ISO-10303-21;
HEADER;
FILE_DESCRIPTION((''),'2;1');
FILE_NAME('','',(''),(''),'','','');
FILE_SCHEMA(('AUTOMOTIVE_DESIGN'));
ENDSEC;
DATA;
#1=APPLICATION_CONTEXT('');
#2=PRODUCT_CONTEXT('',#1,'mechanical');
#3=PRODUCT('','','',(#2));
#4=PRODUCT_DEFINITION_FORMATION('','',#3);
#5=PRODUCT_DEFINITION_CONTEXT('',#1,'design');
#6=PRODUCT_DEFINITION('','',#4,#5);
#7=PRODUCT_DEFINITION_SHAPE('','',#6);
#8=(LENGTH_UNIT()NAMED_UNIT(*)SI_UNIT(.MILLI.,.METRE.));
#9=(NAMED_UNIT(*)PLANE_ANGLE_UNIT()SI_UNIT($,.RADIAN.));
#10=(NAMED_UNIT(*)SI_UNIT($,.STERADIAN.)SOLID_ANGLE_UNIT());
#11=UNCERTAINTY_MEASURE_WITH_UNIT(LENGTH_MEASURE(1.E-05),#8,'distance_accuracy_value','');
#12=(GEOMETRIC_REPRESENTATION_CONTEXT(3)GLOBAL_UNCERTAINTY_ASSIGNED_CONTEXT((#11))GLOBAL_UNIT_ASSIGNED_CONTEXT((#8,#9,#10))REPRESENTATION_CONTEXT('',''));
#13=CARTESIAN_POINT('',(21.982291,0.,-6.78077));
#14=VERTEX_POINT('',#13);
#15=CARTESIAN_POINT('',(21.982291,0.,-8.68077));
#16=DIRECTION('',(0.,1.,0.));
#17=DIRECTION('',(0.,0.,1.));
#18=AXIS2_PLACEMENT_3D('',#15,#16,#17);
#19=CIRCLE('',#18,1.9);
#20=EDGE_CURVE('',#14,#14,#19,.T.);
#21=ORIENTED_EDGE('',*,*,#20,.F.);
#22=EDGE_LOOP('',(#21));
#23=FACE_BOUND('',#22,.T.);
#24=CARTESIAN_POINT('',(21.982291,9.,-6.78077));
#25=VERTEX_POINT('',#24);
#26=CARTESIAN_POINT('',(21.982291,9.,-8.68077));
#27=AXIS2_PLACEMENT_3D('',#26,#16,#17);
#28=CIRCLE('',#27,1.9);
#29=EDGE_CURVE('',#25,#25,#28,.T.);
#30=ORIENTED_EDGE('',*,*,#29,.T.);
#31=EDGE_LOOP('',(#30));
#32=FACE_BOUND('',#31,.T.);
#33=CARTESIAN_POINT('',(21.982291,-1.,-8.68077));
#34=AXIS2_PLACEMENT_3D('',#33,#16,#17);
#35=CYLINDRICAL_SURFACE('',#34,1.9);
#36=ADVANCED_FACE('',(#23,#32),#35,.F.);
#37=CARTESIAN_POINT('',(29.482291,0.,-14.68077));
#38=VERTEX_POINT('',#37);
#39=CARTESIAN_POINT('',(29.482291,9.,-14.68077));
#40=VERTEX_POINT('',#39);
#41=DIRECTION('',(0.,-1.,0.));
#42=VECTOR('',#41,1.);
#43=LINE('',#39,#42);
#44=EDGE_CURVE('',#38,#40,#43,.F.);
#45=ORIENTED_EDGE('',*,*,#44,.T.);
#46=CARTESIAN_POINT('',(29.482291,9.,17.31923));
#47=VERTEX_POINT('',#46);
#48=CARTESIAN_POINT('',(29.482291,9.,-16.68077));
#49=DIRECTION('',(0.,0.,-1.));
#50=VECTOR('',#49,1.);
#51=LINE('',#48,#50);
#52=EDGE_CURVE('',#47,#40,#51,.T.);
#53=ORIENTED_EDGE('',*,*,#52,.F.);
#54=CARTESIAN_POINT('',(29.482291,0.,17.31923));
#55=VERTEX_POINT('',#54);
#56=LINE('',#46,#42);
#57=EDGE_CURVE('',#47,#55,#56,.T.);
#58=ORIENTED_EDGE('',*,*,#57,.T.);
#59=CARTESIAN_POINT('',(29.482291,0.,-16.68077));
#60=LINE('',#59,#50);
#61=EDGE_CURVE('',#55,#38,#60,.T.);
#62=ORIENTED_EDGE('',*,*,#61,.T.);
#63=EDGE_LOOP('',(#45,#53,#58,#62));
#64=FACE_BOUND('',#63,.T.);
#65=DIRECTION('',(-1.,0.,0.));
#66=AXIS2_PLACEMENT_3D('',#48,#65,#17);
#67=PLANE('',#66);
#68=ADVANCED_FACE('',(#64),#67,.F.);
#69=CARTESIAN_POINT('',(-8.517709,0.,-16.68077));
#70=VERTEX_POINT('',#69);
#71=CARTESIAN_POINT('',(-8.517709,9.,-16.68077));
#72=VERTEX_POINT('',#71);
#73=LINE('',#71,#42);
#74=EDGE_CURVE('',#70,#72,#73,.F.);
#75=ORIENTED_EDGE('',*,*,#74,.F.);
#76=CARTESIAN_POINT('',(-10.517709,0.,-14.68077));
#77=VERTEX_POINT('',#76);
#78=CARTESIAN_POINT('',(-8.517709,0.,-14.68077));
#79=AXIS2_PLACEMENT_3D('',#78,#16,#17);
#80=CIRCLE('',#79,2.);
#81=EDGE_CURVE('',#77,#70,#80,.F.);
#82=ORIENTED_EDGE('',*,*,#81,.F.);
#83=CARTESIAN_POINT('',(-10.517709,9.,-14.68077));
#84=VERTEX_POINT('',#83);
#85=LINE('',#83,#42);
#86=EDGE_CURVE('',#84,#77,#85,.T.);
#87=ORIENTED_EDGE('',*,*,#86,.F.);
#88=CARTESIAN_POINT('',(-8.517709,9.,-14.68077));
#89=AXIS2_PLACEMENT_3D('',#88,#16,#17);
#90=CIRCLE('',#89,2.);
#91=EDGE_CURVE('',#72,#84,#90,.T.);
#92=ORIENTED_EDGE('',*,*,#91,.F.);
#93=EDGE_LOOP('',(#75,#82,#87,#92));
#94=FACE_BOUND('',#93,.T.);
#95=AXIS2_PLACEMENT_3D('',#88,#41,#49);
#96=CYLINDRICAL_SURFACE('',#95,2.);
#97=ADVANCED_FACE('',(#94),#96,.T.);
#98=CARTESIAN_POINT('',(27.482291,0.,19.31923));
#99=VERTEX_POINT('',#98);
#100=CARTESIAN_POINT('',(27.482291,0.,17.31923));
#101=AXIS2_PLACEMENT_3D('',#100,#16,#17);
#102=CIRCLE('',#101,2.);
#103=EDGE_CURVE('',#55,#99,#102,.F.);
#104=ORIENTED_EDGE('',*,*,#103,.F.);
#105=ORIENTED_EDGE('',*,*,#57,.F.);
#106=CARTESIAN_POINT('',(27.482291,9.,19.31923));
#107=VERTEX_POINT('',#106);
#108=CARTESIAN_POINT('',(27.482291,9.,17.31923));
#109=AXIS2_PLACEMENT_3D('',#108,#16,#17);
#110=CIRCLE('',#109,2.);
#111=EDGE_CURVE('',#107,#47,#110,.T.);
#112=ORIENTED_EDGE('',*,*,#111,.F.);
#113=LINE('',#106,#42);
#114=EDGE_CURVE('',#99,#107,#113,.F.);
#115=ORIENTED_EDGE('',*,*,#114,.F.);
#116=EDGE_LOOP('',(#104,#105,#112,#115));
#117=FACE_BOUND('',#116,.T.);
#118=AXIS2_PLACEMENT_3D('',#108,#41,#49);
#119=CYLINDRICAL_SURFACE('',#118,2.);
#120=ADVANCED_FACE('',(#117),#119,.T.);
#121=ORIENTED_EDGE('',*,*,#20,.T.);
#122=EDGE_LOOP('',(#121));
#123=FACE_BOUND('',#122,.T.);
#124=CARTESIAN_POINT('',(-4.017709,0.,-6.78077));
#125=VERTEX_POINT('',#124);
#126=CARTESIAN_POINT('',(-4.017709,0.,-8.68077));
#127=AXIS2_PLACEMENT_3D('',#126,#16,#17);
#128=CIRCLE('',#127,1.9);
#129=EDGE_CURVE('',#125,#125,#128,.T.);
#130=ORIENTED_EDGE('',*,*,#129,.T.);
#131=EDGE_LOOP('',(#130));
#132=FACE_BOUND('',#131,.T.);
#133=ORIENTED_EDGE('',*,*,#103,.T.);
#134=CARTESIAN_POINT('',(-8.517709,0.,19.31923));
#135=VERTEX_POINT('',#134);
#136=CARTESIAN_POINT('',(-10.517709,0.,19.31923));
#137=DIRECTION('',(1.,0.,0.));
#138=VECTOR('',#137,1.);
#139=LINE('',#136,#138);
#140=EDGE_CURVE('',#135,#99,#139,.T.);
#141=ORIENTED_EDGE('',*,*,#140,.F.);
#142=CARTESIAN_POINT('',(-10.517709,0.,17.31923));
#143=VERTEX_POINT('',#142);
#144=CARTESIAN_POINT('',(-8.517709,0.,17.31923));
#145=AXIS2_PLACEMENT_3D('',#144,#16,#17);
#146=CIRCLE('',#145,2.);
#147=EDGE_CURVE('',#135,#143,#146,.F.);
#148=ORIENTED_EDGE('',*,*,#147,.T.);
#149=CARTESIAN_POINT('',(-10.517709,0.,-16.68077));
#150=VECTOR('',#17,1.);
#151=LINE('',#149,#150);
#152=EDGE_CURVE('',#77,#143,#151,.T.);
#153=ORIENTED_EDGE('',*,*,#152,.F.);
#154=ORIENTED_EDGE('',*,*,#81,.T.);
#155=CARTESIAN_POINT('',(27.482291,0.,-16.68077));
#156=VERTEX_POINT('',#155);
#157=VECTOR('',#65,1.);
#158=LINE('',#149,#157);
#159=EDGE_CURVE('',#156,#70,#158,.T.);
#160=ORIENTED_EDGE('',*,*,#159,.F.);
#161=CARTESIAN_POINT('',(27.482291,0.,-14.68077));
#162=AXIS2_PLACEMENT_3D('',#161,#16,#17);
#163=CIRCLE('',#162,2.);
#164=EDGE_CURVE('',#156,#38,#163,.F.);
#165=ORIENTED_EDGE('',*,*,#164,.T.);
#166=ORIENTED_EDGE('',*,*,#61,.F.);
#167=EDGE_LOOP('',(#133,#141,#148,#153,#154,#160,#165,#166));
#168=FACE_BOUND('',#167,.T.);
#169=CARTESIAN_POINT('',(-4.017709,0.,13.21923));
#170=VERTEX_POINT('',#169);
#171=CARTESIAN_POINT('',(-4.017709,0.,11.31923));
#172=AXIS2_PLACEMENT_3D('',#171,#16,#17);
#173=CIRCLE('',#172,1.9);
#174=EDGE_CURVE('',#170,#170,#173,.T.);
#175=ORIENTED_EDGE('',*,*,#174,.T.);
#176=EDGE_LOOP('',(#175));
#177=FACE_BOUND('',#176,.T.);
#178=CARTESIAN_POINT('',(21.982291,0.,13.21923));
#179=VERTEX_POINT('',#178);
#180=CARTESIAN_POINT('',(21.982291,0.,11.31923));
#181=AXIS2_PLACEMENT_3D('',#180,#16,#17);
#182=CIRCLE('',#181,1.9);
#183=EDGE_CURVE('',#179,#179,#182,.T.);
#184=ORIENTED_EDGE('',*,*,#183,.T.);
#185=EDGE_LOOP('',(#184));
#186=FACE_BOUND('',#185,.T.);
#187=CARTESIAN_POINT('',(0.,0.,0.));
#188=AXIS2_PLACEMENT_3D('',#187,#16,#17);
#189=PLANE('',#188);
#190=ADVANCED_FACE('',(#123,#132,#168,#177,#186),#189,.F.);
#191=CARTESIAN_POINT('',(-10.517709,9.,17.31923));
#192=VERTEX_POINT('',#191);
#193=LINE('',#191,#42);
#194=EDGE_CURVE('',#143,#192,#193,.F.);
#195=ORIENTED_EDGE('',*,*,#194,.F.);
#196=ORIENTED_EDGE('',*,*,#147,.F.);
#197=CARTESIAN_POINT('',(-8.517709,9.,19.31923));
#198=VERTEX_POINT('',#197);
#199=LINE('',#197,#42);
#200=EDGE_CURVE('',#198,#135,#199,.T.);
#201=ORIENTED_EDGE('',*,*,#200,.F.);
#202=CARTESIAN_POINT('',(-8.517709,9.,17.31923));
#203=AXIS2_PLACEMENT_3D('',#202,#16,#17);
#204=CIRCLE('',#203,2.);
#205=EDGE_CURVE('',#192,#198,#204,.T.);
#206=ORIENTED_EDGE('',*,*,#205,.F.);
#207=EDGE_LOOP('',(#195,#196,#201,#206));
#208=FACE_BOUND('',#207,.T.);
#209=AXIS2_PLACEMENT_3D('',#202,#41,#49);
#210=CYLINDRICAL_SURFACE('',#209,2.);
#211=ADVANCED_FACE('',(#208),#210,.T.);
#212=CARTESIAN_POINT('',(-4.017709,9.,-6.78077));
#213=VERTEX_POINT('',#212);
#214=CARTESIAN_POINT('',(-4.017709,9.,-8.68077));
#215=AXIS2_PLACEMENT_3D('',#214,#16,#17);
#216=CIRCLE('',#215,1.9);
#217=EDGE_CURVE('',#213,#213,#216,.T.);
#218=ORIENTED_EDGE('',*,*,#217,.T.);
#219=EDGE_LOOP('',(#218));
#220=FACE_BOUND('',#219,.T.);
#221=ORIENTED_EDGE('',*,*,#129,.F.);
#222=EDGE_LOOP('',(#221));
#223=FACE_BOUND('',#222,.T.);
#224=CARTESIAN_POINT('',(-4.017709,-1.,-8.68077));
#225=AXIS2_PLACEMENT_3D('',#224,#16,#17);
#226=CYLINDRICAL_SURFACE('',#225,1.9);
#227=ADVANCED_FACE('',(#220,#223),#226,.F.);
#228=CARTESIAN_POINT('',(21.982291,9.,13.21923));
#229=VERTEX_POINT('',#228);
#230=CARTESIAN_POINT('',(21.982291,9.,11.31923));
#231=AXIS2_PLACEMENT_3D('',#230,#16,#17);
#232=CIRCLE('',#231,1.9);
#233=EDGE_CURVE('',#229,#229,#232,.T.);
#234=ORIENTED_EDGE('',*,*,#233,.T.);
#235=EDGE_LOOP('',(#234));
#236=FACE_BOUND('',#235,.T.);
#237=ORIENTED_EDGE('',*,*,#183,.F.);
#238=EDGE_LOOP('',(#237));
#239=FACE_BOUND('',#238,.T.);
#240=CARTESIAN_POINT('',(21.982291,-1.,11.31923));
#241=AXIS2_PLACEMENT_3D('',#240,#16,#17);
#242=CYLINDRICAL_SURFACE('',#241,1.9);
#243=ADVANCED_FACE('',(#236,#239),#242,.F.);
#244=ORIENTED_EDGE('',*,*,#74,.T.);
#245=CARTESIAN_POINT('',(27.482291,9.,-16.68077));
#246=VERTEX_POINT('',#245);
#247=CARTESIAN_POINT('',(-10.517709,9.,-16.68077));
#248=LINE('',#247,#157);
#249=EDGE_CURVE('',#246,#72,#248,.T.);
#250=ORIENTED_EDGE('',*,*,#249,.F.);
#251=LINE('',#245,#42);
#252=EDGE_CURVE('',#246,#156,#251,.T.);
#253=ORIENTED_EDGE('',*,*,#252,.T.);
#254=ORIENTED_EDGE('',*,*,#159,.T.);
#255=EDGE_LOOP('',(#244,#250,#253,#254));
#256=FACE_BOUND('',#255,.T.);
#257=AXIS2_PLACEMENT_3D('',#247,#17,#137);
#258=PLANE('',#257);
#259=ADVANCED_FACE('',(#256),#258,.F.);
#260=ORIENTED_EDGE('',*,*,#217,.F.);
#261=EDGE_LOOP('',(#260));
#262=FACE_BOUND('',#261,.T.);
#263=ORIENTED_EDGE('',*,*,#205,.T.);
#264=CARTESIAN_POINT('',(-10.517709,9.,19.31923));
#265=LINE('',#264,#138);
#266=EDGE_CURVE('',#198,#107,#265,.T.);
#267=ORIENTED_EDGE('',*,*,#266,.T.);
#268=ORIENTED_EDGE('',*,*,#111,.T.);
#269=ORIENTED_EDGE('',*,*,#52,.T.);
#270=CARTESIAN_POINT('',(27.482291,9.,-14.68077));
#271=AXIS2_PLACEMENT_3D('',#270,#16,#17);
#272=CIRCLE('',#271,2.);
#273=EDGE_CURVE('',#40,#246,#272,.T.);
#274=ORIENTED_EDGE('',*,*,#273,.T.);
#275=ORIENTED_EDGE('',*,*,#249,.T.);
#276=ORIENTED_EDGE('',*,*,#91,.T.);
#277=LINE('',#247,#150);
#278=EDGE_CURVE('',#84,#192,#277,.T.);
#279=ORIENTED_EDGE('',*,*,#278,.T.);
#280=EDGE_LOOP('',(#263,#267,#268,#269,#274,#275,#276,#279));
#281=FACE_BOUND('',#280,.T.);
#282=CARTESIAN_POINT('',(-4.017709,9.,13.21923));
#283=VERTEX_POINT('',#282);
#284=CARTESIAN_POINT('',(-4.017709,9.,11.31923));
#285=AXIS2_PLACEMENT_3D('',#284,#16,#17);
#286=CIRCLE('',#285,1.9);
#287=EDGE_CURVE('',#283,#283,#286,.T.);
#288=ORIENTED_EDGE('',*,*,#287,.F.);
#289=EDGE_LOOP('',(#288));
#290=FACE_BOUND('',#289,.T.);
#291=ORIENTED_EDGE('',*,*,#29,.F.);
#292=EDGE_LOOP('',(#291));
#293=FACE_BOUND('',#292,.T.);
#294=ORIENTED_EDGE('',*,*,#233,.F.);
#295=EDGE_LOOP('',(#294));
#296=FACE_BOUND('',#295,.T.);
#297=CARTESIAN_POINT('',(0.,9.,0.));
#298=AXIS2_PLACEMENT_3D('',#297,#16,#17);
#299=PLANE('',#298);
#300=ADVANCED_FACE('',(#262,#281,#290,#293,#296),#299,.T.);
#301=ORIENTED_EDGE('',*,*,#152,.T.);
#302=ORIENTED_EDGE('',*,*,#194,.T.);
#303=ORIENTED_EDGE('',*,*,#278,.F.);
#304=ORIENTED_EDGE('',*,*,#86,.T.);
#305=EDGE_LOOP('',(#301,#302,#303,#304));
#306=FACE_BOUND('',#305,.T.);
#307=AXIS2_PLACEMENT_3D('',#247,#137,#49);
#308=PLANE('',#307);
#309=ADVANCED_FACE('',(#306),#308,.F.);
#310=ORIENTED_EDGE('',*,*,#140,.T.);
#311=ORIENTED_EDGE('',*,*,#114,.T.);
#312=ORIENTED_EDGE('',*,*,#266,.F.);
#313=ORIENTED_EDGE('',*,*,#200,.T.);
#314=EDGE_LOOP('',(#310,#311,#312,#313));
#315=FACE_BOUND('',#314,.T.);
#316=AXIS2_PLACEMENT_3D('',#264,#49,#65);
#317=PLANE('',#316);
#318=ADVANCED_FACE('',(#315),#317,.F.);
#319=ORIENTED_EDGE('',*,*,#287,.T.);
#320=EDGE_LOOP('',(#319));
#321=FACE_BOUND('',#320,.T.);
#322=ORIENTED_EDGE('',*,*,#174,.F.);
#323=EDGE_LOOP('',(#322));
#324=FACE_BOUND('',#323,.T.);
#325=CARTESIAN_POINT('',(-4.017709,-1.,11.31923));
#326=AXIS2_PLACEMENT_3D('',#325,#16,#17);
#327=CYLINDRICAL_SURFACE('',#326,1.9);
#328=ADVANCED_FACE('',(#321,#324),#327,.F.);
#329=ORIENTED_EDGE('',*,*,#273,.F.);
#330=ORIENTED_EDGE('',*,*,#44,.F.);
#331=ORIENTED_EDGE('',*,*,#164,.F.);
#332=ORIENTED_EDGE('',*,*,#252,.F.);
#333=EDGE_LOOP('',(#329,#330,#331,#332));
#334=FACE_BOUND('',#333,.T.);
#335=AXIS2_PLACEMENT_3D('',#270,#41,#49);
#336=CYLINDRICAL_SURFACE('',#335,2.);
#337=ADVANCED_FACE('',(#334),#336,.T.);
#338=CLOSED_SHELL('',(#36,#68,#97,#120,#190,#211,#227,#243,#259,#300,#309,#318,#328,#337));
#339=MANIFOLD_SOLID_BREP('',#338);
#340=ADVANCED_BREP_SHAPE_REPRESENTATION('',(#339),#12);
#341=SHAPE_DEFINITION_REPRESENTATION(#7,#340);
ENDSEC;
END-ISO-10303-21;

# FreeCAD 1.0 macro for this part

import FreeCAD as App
import Part
import Sketcher
from FreeCAD import Vector
Q = App.Units.Quantity


def edges_at(feature, points):
    """Names of the edges that pass closest to the given points."""
    edges = feature.Shape.Edges
    near = lambda p: min(range(len(edges)), key=lambda i: edges[i].distToShape(Part.Vertex(*p))[0])
    return sorted({f"Edge{near(p) + 1}" for p in points})

doc = App.newDocument("Part")
params = doc.addObject("Spreadsheet::Sheet", "Params")
for row, (alias, value) in enumerate([
    ("sketch1_width", "40 mm"),
    ("sketch1_height", "36 mm"),
    ("pad1_length", "9 mm"),
    ("sketch2_diameter", "3.8 mm"),
    ("pocket1_length", "10 mm"),
    ("fillet_radius", "2 mm"),
], start=1):
    params.set(f"A{row}", alias)
    params.set(f"B{row}", "=" + value)
    params.setAlias(f"B{row}", alias)

body = doc.addObject("PartDesign::Body", "Body")

# Sketch on XZ plane
sketch1 = body.newObject("Sketcher::SketchObject", "Sketch")
sketch1.AttachmentSupport = (doc.getObject("XZ_Plane"), [""])
sketch1.MapMode = "FlatFace"
sketch1.addGeometry(Part.LineSegment(Vector(-11, -17, 0), Vector(-11, 19, 0)), False)
sketch1.addGeometry(Part.LineSegment(Vector(-11, 19, 0), Vector(29, 19, 0)), False)
sketch1.addGeometry(Part.LineSegment(Vector(29, 19, 0), Vector(29, -17, 0)), False)
sketch1.addGeometry(Part.LineSegment(Vector(29, -17, 0), Vector(-11, -17, 0)), False)
sketch1.addConstraint(Sketcher.Constraint("Coincident", 0, 2, 1, 1))
sketch1.addConstraint(Sketcher.Constraint("Coincident", 1, 2, 2, 1))
sketch1.addConstraint(Sketcher.Constraint("Coincident", 2, 2, 3, 1))
sketch1.addConstraint(Sketcher.Constraint("Coincident", 3, 2, 0, 1))
sketch1.addConstraint(Sketcher.Constraint("Vertical", 0))
sketch1.addConstraint(Sketcher.Constraint("Horizontal", 1))
sketch1.addConstraint(Sketcher.Constraint("Vertical", 2))
sketch1.addConstraint(Sketcher.Constraint("Horizontal", 3))
sketch1.addConstraint(Sketcher.Constraint("DistanceX", 1, 1, 1, 2, Q("40 mm")))
sketch1.addConstraint(Sketcher.Constraint("DistanceY", 0, 1, 0, 2, Q("36 mm")))
sketch1.addConstraint(Sketcher.Constraint("DistanceX", 0, 2, -1, 1, Q("10.517709 mm")))
sketch1.addConstraint(Sketcher.Constraint("DistanceY", -1, 1, 0, 2, Q("19.31923 mm")))
sketch1.setExpression("Constraints[8]", "Params.sketch1_width")
sketch1.setExpression("Constraints[9]", "Params.sketch1_height")
pad1 = body.newObject("PartDesign::Pad", "Pad")
pad1.Profile = sketch1
pad1.setExpression("Length", "Params.pad1_length")
pad1.Reversed = True

# Sketch on XZ plane
sketch2 = body.newObject("Sketcher::SketchObject", "Sketch001")
sketch2.AttachmentSupport = (doc.getObject("XZ_Plane"), [""])
sketch2.MapMode = "FlatFace"
sketch2.AttachmentOffset = App.Placement(Vector(0, 0, -9), App.Rotation())
sketch2.addGeometry(Part.Circle(Vector(-4, 11.3, 0), Vector(0, 0, 1), 1.9), False)
sketch2.addGeometry(Part.Circle(Vector(22, 11.3, 0), Vector(0, 0, 1), 1.9), False)
sketch2.addGeometry(Part.Circle(Vector(-4, -8.7, 0), Vector(0, 0, 1), 1.9), False)
sketch2.addGeometry(Part.Circle(Vector(22, -8.7, 0), Vector(0, 0, 1), 1.9), False)
sketch2.addConstraint(Sketcher.Constraint("Equal", 0, 1))
sketch2.addConstraint(Sketcher.Constraint("Equal", 1, 2))
sketch2.addConstraint(Sketcher.Constraint("Equal", 2, 3))
sketch2.addConstraint(Sketcher.Constraint("Horizontal", 0, 3, 1, 3))
sketch2.addConstraint(Sketcher.Constraint("Horizontal", 2, 3, 3, 3))
sketch2.addConstraint(Sketcher.Constraint("Vertical", 0, 3, 2, 3))
sketch2.addConstraint(Sketcher.Constraint("Vertical", 1, 3, 3, 3))
sketch2.addConstraint(Sketcher.Constraint("Diameter", 0, Q("3.8 mm")))
sketch2.addConstraint(Sketcher.Constraint("DistanceX", 0, 3, 1, 3, Q("26 mm")))
sketch2.addConstraint(Sketcher.Constraint("DistanceY", 2, 3, 0, 3, Q("20 mm")))
sketch2.addConstraint(Sketcher.Constraint("DistanceX", 0, 3, -1, 1, Q("4.017709 mm")))
sketch2.addConstraint(Sketcher.Constraint("DistanceY", -1, 1, 0, 3, Q("11.31923 mm")))
sketch2.setExpression("Constraints[7]", "Params.sketch2_diameter")
pocket1 = body.newObject("PartDesign::Pocket", "Pocket")
pocket1.Profile = sketch2
pocket1.setExpression("Length", "Params.pocket1_length")
pocket1.Reversed = True
doc.recompute()

fillet = body.newObject("PartDesign::Fillet", "Fillet")
fillet.Base = (pocket1, edges_at(pocket1, [
    (-10.518, 4.5, -16.681),
    (29.482, 4.5, -16.681),
    (29.482, 4.5, 19.319),
    (-10.518, 4.5, 19.319),
]))
fillet.setExpression("Radius", "Params.fillet_radius")

doc.recompute()
